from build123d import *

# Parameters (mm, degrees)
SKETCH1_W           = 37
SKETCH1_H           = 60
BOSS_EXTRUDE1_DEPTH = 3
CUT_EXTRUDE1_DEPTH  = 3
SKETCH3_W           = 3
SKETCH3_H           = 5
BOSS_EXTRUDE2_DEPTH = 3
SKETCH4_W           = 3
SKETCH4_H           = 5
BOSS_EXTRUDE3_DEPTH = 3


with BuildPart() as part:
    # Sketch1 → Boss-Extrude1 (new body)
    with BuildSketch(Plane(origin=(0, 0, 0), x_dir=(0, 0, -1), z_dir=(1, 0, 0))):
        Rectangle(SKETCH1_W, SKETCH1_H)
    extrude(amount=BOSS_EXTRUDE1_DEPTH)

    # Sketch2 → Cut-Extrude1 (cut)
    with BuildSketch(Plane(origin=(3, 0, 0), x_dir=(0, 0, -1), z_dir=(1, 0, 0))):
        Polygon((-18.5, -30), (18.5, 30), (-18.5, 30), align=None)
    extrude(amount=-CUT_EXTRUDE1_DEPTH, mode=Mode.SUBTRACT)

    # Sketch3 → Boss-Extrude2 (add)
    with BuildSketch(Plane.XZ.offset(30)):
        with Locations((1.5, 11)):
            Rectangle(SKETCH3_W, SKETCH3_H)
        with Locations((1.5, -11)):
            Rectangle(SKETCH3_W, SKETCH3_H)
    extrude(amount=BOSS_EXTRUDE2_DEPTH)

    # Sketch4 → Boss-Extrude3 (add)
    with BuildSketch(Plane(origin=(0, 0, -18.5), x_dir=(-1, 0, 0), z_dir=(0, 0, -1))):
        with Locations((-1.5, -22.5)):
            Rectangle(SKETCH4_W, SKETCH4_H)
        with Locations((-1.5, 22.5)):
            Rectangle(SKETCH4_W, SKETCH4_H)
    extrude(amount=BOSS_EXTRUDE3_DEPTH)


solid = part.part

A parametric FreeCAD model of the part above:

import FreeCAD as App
import Part
import Sketcher
from FreeCAD import Vector


def add_polygon(sketch, points):
    """Adds a closed chain of lines whose ends are joined by coincident constraints."""
    first, n = sketch.GeometryCount, len(points)
    for a, b in zip(points, points[1:] + points[:1]):
        sketch.addGeometry(Part.LineSegment(App.Vector(*a, 0), App.Vector(*b, 0)), False)
    for i in range(n):
        sketch.addConstraint(Sketcher.Constraint("Coincident", first + i, 2, first + (i + 1) % n, 1))

doc = App.newDocument("Part")
body = doc.addObject("PartDesign::Body", "Body")

# Sketch on YZ plane
sketch1 = body.newObject("Sketcher::SketchObject", "Sketch")
sketch1.AttachmentSupport = (doc.getObject("YZ_Plane"), [""])
sketch1.MapMode = "FlatFace"
add_polygon(sketch1, [(30, 18), (-30, 18), (-30, -18), (30, -18)])  # lines 0-3
sketch1.addConstraint(Sketcher.Constraint("Horizontal", 0))
sketch1.addConstraint(Sketcher.Constraint("Vertical", 1))
sketch1.addConstraint(Sketcher.Constraint("Horizontal", 2))
sketch1.addConstraint(Sketcher.Constraint("Vertical", 3))
sketch1.addConstraint(Sketcher.Constraint("Symmetric", 0, 2, 2, 2, -1, 1))
sketch1.addConstraint(Sketcher.Constraint("DistanceX", 0, 2, 0, 1, 60.0))
sketch1.addConstraint(Sketcher.Constraint("DistanceY", 1, 2, 1, 1, 37.0))
pad1 = body.newObject("PartDesign::Pad", "Pad")
pad1.Profile = sketch1
pad1.Length = 3

# Sketch on YZ plane
sketch2 = body.newObject("Sketcher::SketchObject", "Sketch001")
sketch2.AttachmentSupport = (doc.getObject("YZ_Plane"), [""])
sketch2.MapMode = "FlatFace"
sketch2.AttachmentOffset = App.Placement(Vector(0, 0, 3), App.Rotation())
add_polygon(sketch2, [(-30, 18), (30, -18), (30, 18)])  # lines 0-2
sketch2.addConstraint(Sketcher.Constraint("Vertical", 1))
sketch2.addConstraint(Sketcher.Constraint("Horizontal", 2))
sketch2.addConstraint(Sketcher.Constraint("Symmetric", 0, 2, 2, 2, -1, 1))
sketch2.addConstraint(Sketcher.Constraint("DistanceX", 2, 2, 2, 1, 60.0))
sketch2.addConstraint(Sketcher.Constraint("DistanceY", 1, 1, 1, 2, 37.0))
pocket1 = body.newObject("PartDesign::Pocket", "Pocket")
pocket1.Profile = sketch2
pocket1.Length = 3

# Sketch on XZ plane
sketch3 = body.newObject("Sketcher::SketchObject", "Sketch002")
sketch3.AttachmentSupport = (doc.getObject("XZ_Plane"), [""])
sketch3.MapMode = "FlatFace"
sketch3.AttachmentOffset = App.Placement(Vector(0, 0, 30), App.Rotation())
add_polygon(sketch3, [(0, 13.5), (0, 8.5), (3, 8.5), (3, 13.5)])  # lines 0-3
add_polygon(sketch3, [(0, -8.5), (0, -13.5), (3, -13.5), (3, -8.5)])  # lines 4-7
sketch3.addConstraint(Sketcher.Constraint("Vertical", 0))
sketch3.addConstraint(Sketcher.Constraint("Horizontal", 1))
sketch3.addConstraint(Sketcher.Constraint("Vertical", 2))
sketch3.addConstraint(Sketcher.Constraint("Horizontal", 3))
sketch3.addConstraint(Sketcher.Constraint("Vertical", 4))
sketch3.addConstraint(Sketcher.Constraint("Horizontal", 5))
sketch3.addConstraint(Sketcher.Constraint("Vertical", 6))
sketch3.addConstraint(Sketcher.Constraint("Horizontal", 7))
sketch3.addConstraint(Sketcher.Constraint("Symmetric", 3, 2, 4, 2, -1, 1))
sketch3.addConstraint(Sketcher.Constraint("Symmetric", 1, 2, 6, 2, -1))
sketch3.addConstraint(Sketcher.Constraint("PointOnObject", 0, 2, -2))
sketch3.addConstraint(Sketcher.Constraint("DistanceX", 1, 1, 1, 2, 3.0))
sketch3.addConstraint(Sketcher.Constraint("DistanceY", 0, 2, 0, 1, 5.0))
sketch3.addConstraint(Sketcher.Constraint("DistanceY", 4, 2, 0, 2, 22.0))
pad2 = body.newObject("PartDesign::Pad", "Pad001")
pad2.Profile = sketch3
pad2.Length = 3

# Sketch on XY plane
sketch4 = body.newObject("Sketcher::SketchObject", "Sketch003")
sketch4.AttachmentSupport = (doc.getObject("XY_Plane"), [""])
sketch4.MapMode = "FlatFace"
sketch4.AttachmentOffset = App.Placement(Vector(0, 0, -18.5), App.Rotation())
add_polygon(sketch4, [(3, -20), (3, -25), (0, -25), (0, -20)])  # lines 0-3
add_polygon(sketch4, [(3, 25), (3, 20), (0, 20), (0, 25)])  # lines 4-7
sketch4.addConstraint(Sketcher.Constraint("Vertical", 0))
sketch4.addConstraint(Sketcher.Constraint("Horizontal", 1))
sketch4.addConstraint(Sketcher.Constraint("Vertical", 2))
sketch4.addConstraint(Sketcher.Constraint("Horizontal", 3))
sketch4.addConstraint(Sketcher.Constraint("Vertical", 4))
sketch4.addConstraint(Sketcher.Constraint("Horizontal", 5))
sketch4.addConstraint(Sketcher.Constraint("Vertical", 6))
sketch4.addConstraint(Sketcher.Constraint("Horizontal", 7))
sketch4.addConstraint(Sketcher.Constraint("Symmetric", 2, 2, 5, 2, -1, 1))
sketch4.addConstraint(Sketcher.Constraint("Symmetric", 1, 2, 6, 2, -1))
sketch4.addConstraint(Sketcher.Constraint("Vertical", 3, 2, 4, 2))
sketch4.addConstraint(Sketcher.Constraint("DistanceX", 1, 2, 1, 1, 3.0))
sketch4.addConstraint(Sketcher.Constraint("DistanceY", 0, 2, 0, 1, 5.0))
sketch4.addConstraint(Sketcher.Constraint("DistanceY", 0, 2, -1, 1, 25.0))
pad3 = body.newObject("PartDesign::Pad", "Pad002")
pad3.Profile = sketch4
pad3.Length = 3
pad3.Reversed = True

doc.recompute()
